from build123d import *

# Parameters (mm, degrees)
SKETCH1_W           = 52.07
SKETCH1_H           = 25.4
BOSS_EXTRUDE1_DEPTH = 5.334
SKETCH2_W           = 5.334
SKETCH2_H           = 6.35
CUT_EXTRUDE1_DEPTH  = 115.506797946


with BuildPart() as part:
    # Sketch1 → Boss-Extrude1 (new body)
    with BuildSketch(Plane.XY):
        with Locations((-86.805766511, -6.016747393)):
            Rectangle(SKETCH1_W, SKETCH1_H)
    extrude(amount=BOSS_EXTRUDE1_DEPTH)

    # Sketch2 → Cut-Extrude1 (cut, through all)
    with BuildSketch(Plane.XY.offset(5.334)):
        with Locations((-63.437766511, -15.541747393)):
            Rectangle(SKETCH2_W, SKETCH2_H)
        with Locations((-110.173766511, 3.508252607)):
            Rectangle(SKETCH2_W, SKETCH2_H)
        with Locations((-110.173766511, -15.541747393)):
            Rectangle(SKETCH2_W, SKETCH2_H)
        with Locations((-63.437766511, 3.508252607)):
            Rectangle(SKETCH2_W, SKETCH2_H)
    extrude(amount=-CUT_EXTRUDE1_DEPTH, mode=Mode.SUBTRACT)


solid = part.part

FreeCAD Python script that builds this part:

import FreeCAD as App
import Part
import Sketcher

V = App.Vector
Q = App.Units.Quantity

doc = App.newDocument("Part")
body = doc.addObject("PartDesign::Body", "Body")

# Sketch on XY plane
sketch1 = doc.addObject("Sketcher::SketchObject", "Sketch")
body.addObject(sketch1)
sketch1.AttachmentSupport = (doc.XY_Plane, [""])
sketch1.MapMode = "FlatFace"
sketch1.addGeometry(Part.LineSegment(V(-113, 7, 0), V(-113, -19, 0)), False)
sketch1.addGeometry(Part.LineSegment(V(-113, -19, 0), V(-61, -19, 0)), False)
sketch1.addGeometry(Part.LineSegment(V(-61, -19, 0), V(-61, 7, 0)), False)
sketch1.addGeometry(Part.LineSegment(V(-61, 7, 0), V(-113, 7, 0)), False)
sketch1.addConstraint(Sketcher.Constraint("Coincident", 0, 2, 1, 1))
sketch1.addConstraint(Sketcher.Constraint("Coincident", 1, 2, 2, 1))
sketch1.addConstraint(Sketcher.Constraint("Coincident", 2, 2, 3, 1))
sketch1.addConstraint(Sketcher.Constraint("Coincident", 3, 2, 0, 1))
sketch1.addConstraint(Sketcher.Constraint("Vertical", 0))
sketch1.addConstraint(Sketcher.Constraint("Horizontal", 1))
sketch1.addConstraint(Sketcher.Constraint("Vertical", 2))
sketch1.addConstraint(Sketcher.Constraint("Horizontal", 3))
sketch1.addConstraint(Sketcher.Constraint("DistanceY", 0, 2, 0, 1, Q("1 in")))
sketch1.addConstraint(Sketcher.Constraint("DistanceX", 1, 1, 1, 2, Q("2.05 in")))
sketch1.addConstraint(Sketcher.Constraint("DistanceX", 0, 2, -1, 1, Q("112.840767 mm")))
sketch1.addConstraint(Sketcher.Constraint("DistanceY", 0, 2, -1, 1, Q("18.716747 mm")))
pad1 = doc.addObject("PartDesign::Pad", "Pad")
body.addObject(pad1)
pad1.Profile = sketch1
pad1.Length = Q("0.21 in")

# Sketch on XY plane
sketch2 = doc.addObject("Sketcher::SketchObject", "Sketch001")
body.addObject(sketch2)
sketch2.AttachmentSupport = (doc.XY_Plane, [""])
sketch2.MapMode = "FlatFace"
sketch2.AttachmentOffset = App.Placement(V(0, 0, 0.21 * 25.4), App.Rotation())
sketch2.addGeometry(Part.LineSegment(V(-66, -12, 0), V(-66, -19, 0)), False)
sketch2.addGeometry(Part.LineSegment(V(-66, -19, 0), V(-61, -19, 0)), False)
sketch2.addGeometry(Part.LineSegment(V(-61, -19, 0), V(-61, -12, 0)), False)
sketch2.addGeometry(Part.LineSegment(V(-61, -12, 0), V(-66, -12, 0)), False)
sketch2.addGeometry(Part.LineSegment(V(-113, 7, 0), V(-113, 0, 0)), False)
sketch2.addGeometry(Part.LineSegment(V(-113, 0, 0), V(-108, 0, 0)), False)
sketch2.addGeometry(Part.LineSegment(V(-108, 0, 0), V(-108, 7, 0)), False)
sketch2.addGeometry(Part.LineSegment(V(-108, 7, 0), V(-113, 7, 0)), False)
sketch2.addGeometry(Part.LineSegment(V(-113, -12, 0), V(-113, -19, 0)), False)
sketch2.addGeometry(Part.LineSegment(V(-113, -19, 0), V(-108, -19, 0)), False)
sketch2.addGeometry(Part.LineSegment(V(-108, -19, 0), V(-108, -12, 0)), False)
sketch2.addGeometry(Part.LineSegment(V(-108, -12, 0), V(-113, -12, 0)), False)
sketch2.addGeometry(Part.LineSegment(V(-66, 7, 0), V(-66, 0, 0)), False)
sketch2.addGeometry(Part.LineSegment(V(-66, 0, 0), V(-61, 0, 0)), False)
sketch2.addGeometry(Part.LineSegment(V(-61, 0, 0), V(-61, 7, 0)), False)
sketch2.addGeometry(Part.LineSegment(V(-61, 7, 0), V(-66, 7, 0)), False)
sketch2.addConstraint(Sketcher.Constraint("Coincident", 0, 2, 1, 1))
sketch2.addConstraint(Sketcher.Constraint("Coincident", 1, 2, 2, 1))
sketch2.addConstraint(Sketcher.Constraint("Coincident", 2, 2, 3, 1))
sketch2.addConstraint(Sketcher.Constraint("Coincident", 3, 2, 0, 1))
sketch2.addConstraint(Sketcher.Constraint("Coincident", 4, 2, 5, 1))
sketch2.addConstraint(Sketcher.Constraint("Coincident", 5, 2, 6, 1))
sketch2.addConstraint(Sketcher.Constraint("Coincident", 6, 2, 7, 1))
sketch2.addConstraint(Sketcher.Constraint("Coincident", 7, 2, 4, 1))
sketch2.addConstraint(Sketcher.Constraint("Coincident", 8, 2, 9, 1))
sketch2.addConstraint(Sketcher.Constraint("Coincident", 9, 2, 10, 1))
sketch2.addConstraint(Sketcher.Constraint("Coincident", 10, 2, 11, 1))
sketch2.addConstraint(Sketcher.Constraint("Coincident", 11, 2, 8, 1))
sketch2.addConstraint(Sketcher.Constraint("Coincident", 12, 2, 13, 1))
sketch2.addConstraint(Sketcher.Constraint("Coincident", 13, 2, 14, 1))
sketch2.addConstraint(Sketcher.Constraint("Coincident", 14, 2, 15, 1))
sketch2.addConstraint(Sketcher.Constraint("Coincident", 15, 2, 12, 1))
sketch2.addConstraint(Sketcher.Constraint("Vertical", 0))
sketch2.addConstraint(Sketcher.Constraint("Horizontal", 1))
sketch2.addConstraint(Sketcher.Constraint("Vertical", 2))
sketch2.addConstraint(Sketcher.Constraint("Horizontal", 3))
sketch2.addConstraint(Sketcher.Constraint("Vertical", 4))
sketch2.addConstraint(Sketcher.Constraint("Horizontal", 5))
sketch2.addConstraint(Sketcher.Constraint("Vertical", 6))
sketch2.addConstraint(Sketcher.Constraint("Horizontal", 7))
sketch2.addConstraint(Sketcher.Constraint("Vertical", 8))
sketch2.addConstraint(Sketcher.Constraint("Horizontal", 9))
sketch2.addConstraint(Sketcher.Constraint("Vertical", 10))
sketch2.addConstraint(Sketcher.Constraint("Horizontal", 11))
sketch2.addConstraint(Sketcher.Constraint("Vertical", 12))
sketch2.addConstraint(Sketcher.Constraint("Horizontal", 13))
sketch2.addConstraint(Sketcher.Constraint("Vertical", 14))
sketch2.addConstraint(Sketcher.Constraint("Horizontal", 15))
sketch2.addConstraint(Sketcher.Constraint("Horizontal", 1, 2, 8, 2))
sketch2.addConstraint(Sketcher.Constraint("Horizontal", 3, 2, 10, 2))
sketch2.addConstraint(Sketcher.Constraint("Horizontal", 5, 2, 12, 2))
sketch2.addConstraint(Sketcher.Constraint("Horizontal", 7, 2, 14, 2))
sketch2.addConstraint(Sketcher.Constraint("Vertical", 7, 2, 8, 2))
sketch2.addConstraint(Sketcher.Constraint("Vertical", 6, 2, 9, 2))
sketch2.addConstraint(Sketcher.Constraint("Vertical", 3, 2, 12, 2))
sketch2.addConstraint(Sketcher.Constraint("Vertical", 2, 2, 13, 2))
sketch2.addConstraint(Sketcher.Constraint("Equal", 3, 5))
sketch2.addConstraint(Sketcher.Constraint("Equal", 2, 4))
sketch2.addConstraint(Sketcher.Constraint("DistanceY", 0, 2, 6, 2, Q("1 in")))
sketch2.addConstraint(Sketcher.Constraint("DistanceX", 1, 1, 1, 2, Q("0.21 in")))
sketch2.addConstraint(Sketcher.Constraint("DistanceY", 0, 2, 0, 1, Q("0.25 in")))
sketch2.addConstraint(Sketcher.Constraint("DistanceX", 4, 2, 3, 2, Q("1.84 in")))
sketch2.addConstraint(Sketcher.Constraint("DistanceX", 0, 2, -1, 1, Q("66.104767 mm")))
sketch2.addConstraint(Sketcher.Constraint("DistanceY", 0, 2, -1, 1, Q("18.716747 mm")))
pocket1 = doc.addObject("PartDesign::Pocket", "Pocket")
body.addObject(pocket1)
pocket1.Profile = sketch2
pocket1.Type = "ThroughAll"

doc.recompute()
